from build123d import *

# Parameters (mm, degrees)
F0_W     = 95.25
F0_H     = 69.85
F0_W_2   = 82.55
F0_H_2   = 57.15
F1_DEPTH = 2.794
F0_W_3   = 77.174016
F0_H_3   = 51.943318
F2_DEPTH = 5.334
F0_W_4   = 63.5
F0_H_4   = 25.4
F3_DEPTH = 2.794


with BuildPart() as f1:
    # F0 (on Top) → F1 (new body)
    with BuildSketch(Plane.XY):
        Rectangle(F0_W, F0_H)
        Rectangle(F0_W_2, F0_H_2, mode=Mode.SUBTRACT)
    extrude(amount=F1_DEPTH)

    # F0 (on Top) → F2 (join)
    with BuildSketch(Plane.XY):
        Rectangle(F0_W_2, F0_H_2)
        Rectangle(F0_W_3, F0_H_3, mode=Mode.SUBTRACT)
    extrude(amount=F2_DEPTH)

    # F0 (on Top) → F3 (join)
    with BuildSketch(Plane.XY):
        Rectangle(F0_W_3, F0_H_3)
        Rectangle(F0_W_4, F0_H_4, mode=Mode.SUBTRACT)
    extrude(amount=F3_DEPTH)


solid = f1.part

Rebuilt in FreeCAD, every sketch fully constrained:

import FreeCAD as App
import Part
import Sketcher
Q = App.Units.Quantity

doc = App.newDocument("Part")
body = doc.addObject("PartDesign::Body", "Body")

# Sketch on XY plane
sketch1 = body.newObject("Sketcher::SketchObject", "Sketch")
sketch1.AttachmentSupport = (doc.getObject("XY_Plane"), [""])
sketch1.MapMode = "FlatFace"
sketch1.addGeometry([
    Part.LineSegment(App.Vector(-48, 35, 0), App.Vector(-48, -35, 0)),  # 0
    Part.LineSegment(App.Vector(-48, -35, 0), App.Vector(48, -35, 0)),  # 1
    Part.LineSegment(App.Vector(48, -35, 0), App.Vector(48, 35, 0)),  # 2
    Part.LineSegment(App.Vector(48, 35, 0), App.Vector(-48, 35, 0)),  # 3
    Part.LineSegment(App.Vector(41, -29, 0), App.Vector(-41, -29, 0)),  # 4
    Part.LineSegment(App.Vector(-41, -29, 0), App.Vector(-41, 29, 0)),  # 5
    Part.LineSegment(App.Vector(-41, 29, 0), App.Vector(41, 29, 0)),  # 6
    Part.LineSegment(App.Vector(41, 29, 0), App.Vector(41, -29, 0)),  # 7
], False)
sketch1.addConstraint([
    Sketcher.Constraint("Coincident", 0, 2, 1, 1),
    Sketcher.Constraint("Coincident", 1, 2, 2, 1),
    Sketcher.Constraint("Coincident", 2, 2, 3, 1),
    Sketcher.Constraint("Coincident", 3, 2, 0, 1),
    Sketcher.Constraint("Coincident", 4, 2, 5, 1),
    Sketcher.Constraint("Coincident", 5, 2, 6, 1),
    Sketcher.Constraint("Coincident", 6, 2, 7, 1),
    Sketcher.Constraint("Coincident", 7, 2, 4, 1),
    Sketcher.Constraint("Vertical", 0),
    Sketcher.Constraint("Horizontal", 1),
    Sketcher.Constraint("Vertical", 2),
    Sketcher.Constraint("Horizontal", 3),
    Sketcher.Constraint("Horizontal", 4),
    Sketcher.Constraint("Vertical", 5),
    Sketcher.Constraint("Horizontal", 6),
    Sketcher.Constraint("Vertical", 7),
    Sketcher.Constraint("Symmetric", 0, 2, 2, 2, -1, 1),
    Sketcher.Constraint("Symmetric", 4, 2, 6, 2, -1, 1),
    Sketcher.Constraint("DistanceX", 1, 1, 1, 2, Q("3.75 in")),
    Sketcher.Constraint("DistanceX", 4, 2, 4, 1, Q("3.25 in")),
    Sketcher.Constraint("DistanceY", 0, 2, 0, 1, Q("2.75 in")),
    Sketcher.Constraint("DistanceY", 5, 1, 5, 2, Q("2.25 in")),
])
pad1 = body.newObject("PartDesign::Pad", "Pad")
pad1.Profile = sketch1
pad1.Length = Q("0.11 in")

# Sketch on XY plane
sketch2 = body.newObject("Sketcher::SketchObject", "Sketch001")
sketch2.AttachmentSupport = (doc.getObject("XY_Plane"), [""])
sketch2.MapMode = "FlatFace"
sketch2.addGeometry([
    Part.LineSegment(App.Vector(-41, 29, 0), App.Vector(-41, -29, 0)),  # 0
    Part.LineSegment(App.Vector(-41, -29, 0), App.Vector(41, -29, 0)),  # 1
    Part.LineSegment(App.Vector(41, -29, 0), App.Vector(41, 29, 0)),  # 2
    Part.LineSegment(App.Vector(41, 29, 0), App.Vector(-41, 29, 0)),  # 3
    Part.LineSegment(App.Vector(39, -26, 0), App.Vector(-39, -26, 0)),  # 4
    Part.LineSegment(App.Vector(-39, -26, 0), App.Vector(-39, 26, 0)),  # 5
    Part.LineSegment(App.Vector(-39, 26, 0), App.Vector(39, 26, 0)),  # 6
    Part.LineSegment(App.Vector(39, 26, 0), App.Vector(39, -26, 0)),  # 7
], False)
sketch2.addConstraint([
    Sketcher.Constraint("Coincident", 0, 2, 1, 1),
    Sketcher.Constraint("Coincident", 1, 2, 2, 1),
    Sketcher.Constraint("Coincident", 2, 2, 3, 1),
    Sketcher.Constraint("Coincident", 3, 2, 0, 1),
    Sketcher.Constraint("Coincident", 4, 2, 5, 1),
    Sketcher.Constraint("Coincident", 5, 2, 6, 1),
    Sketcher.Constraint("Coincident", 6, 2, 7, 1),
    Sketcher.Constraint("Coincident", 7, 2, 4, 1),
    Sketcher.Constraint("Vertical", 0),
    Sketcher.Constraint("Horizontal", 1),
    Sketcher.Constraint("Vertical", 2),
    Sketcher.Constraint("Horizontal", 3),
    Sketcher.Constraint("Horizontal", 4),
    Sketcher.Constraint("Vertical", 5),
    Sketcher.Constraint("Horizontal", 6),
    Sketcher.Constraint("Vertical", 7),
    Sketcher.Constraint("Symmetric", 0, 2, 2, 2, -1, 1),
    Sketcher.Constraint("Symmetric", 4, 2, 6, 2, -1, 1),
    Sketcher.Constraint("DistanceX", 1, 1, 1, 2, Q("3.25 in")),
    Sketcher.Constraint("DistanceY", 0, 2, 0, 1, Q("2.25 in")),
    Sketcher.Constraint("DistanceX", 4, 2, 4, 1, Q("77.174016 mm")),
    Sketcher.Constraint("DistanceY", 5, 1, 5, 2, Q("51.943318 mm")),
])
pad2 = body.newObject("PartDesign::Pad", "Pad001")
pad2.Profile = sketch2
pad2.Length = Q("0.21 in")

# Sketch on XY plane
sketch3 = body.newObject("Sketcher::SketchObject", "Sketch002")
sketch3.AttachmentSupport = (doc.getObject("XY_Plane"), [""])
sketch3.MapMode = "FlatFace"
sketch3.addGeometry([
    Part.LineSegment(App.Vector(-39, 26, 0), App.Vector(-39, -26, 0)),  # 0
    Part.LineSegment(App.Vector(-39, -26, 0), App.Vector(39, -26, 0)),  # 1
    Part.LineSegment(App.Vector(39, -26, 0), App.Vector(39, 26, 0)),  # 2
    Part.LineSegment(App.Vector(39, 26, 0), App.Vector(-39, 26, 0)),  # 3
    Part.LineSegment(App.Vector(32, -13, 0), App.Vector(-32, -13, 0)),  # 4
    Part.LineSegment(App.Vector(-32, -13, 0), App.Vector(-32, 13, 0)),  # 5
    Part.LineSegment(App.Vector(-32, 13, 0), App.Vector(32, 13, 0)),  # 6
    Part.LineSegment(App.Vector(32, 13, 0), App.Vector(32, -13, 0)),  # 7
], False)
sketch3.addConstraint([
    Sketcher.Constraint("Coincident", 0, 2, 1, 1),
    Sketcher.Constraint("Coincident", 1, 2, 2, 1),
    Sketcher.Constraint("Coincident", 2, 2, 3, 1),
    Sketcher.Constraint("Coincident", 3, 2, 0, 1),
    Sketcher.Constraint("Coincident", 4, 2, 5, 1),
    Sketcher.Constraint("Coincident", 5, 2, 6, 1),
    Sketcher.Constraint("Coincident", 6, 2, 7, 1),
    Sketcher.Constraint("Coincident", 7, 2, 4, 1),
    Sketcher.Constraint("Vertical", 0),
    Sketcher.Constraint("Horizontal", 1),
    Sketcher.Constraint("Vertical", 2),
    Sketcher.Constraint("Horizontal", 3),
    Sketcher.Constraint("Horizontal", 4),
    Sketcher.Constraint("Vertical", 5),
    Sketcher.Constraint("Horizontal", 6),
    Sketcher.Constraint("Vertical", 7),
    Sketcher.Constraint("Symmetric", 0, 2, 2, 2, -1, 1),
    Sketcher.Constraint("Symmetric", 4, 2, 6, 2, -1, 1),
    Sketcher.Constraint("DistanceY", 5, 1, 5, 2, Q("1 in")),
    Sketcher.Constraint("DistanceX", 4, 2, 4, 1, Q("2.5 in")),
    Sketcher.Constraint("DistanceX", 1, 1, 1, 2, Q("77.174016 mm")),
    Sketcher.Constraint("DistanceY", 0, 2, 0, 1, Q("51.943318 mm")),
])
pad3 = body.newObject("PartDesign::Pad", "Pad002")
pad3.Profile = sketch3
pad3.Length = Q("0.11 in")

doc.recompute()
